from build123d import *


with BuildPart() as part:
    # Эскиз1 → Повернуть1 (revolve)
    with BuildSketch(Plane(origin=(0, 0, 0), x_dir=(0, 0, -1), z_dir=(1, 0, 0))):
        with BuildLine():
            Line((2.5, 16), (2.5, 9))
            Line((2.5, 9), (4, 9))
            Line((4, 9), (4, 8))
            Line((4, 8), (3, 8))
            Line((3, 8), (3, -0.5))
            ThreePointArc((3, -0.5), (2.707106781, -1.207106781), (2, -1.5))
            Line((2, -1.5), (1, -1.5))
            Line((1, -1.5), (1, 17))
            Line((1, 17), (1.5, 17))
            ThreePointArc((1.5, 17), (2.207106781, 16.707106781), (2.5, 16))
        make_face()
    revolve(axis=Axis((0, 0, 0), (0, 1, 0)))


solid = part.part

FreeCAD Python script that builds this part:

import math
import FreeCAD as App
import Part
import Sketcher
Q = App.Units.Quantity

doc = App.newDocument("Part")
params = doc.addObject("Spreadsheet::Sheet", "Params")
for row, (alias, value) in enumerate([
    ("sketch1_radius", "1 mm"),
    ("sketch1_width", "7 mm"),
    ("sketch1_width2", "1 mm"),
    ("sketch1_width3", "18.5 mm"),
    ("sketch1_height", "0.5 mm"),
    ("revolution_angle", "360 deg"),
], start=1):
    params.set(f"A{row}", alias)
    params.set(f"B{row}", "=" + value)
    params.setAlias(f"B{row}", alias)

body = doc.addObject("PartDesign::Body", "Body")

# Sketch on YZ plane
sketch1 = body.newObject("Sketcher::SketchObject", "Sketch")
sketch1.AttachmentSupport = (doc.getObject("YZ_Plane"), [""])
sketch1.MapMode = "FlatFace"
sketch1.addGeometry([
    Part.LineSegment(App.Vector(9, -2.5, 0), App.Vector(16, -2.5, 0)),  # 0
    Part.ArcOfCircle(Part.Circle(App.Vector(16, -1.5, 0), App.Vector(0, 0, 1), 1), math.radians(-90), math.radians(0)),  # 1
    Part.LineSegment(App.Vector(17, -1.5, 0), App.Vector(17, -1, 0)),  # 2
    Part.LineSegment(App.Vector(17, -1, 0), App.Vector(-1.5, -1, 0)),  # 3
    Part.LineSegment(App.Vector(-1.5, -1, 0), App.Vector(-1.5, -2, 0)),  # 4
    Part.ArcOfCircle(Part.Circle(App.Vector(-0.5, -2, 0), App.Vector(0, 0, 1), 1), math.radians(-180), math.radians(-90)),  # 5
    Part.LineSegment(App.Vector(-0.5, -3, 0), App.Vector(8, -3, 0)),  # 6
    Part.LineSegment(App.Vector(8, -3, 0), App.Vector(8, -4, 0)),  # 7
    Part.LineSegment(App.Vector(8, -4, 0), App.Vector(9, -4, 0)),  # 8
    Part.LineSegment(App.Vector(9, -4, 0), App.Vector(9, -2.5, 0)),  # 9
], False)
sketch1.addConstraint([
    Sketcher.Constraint("Tangent", 0, 2, 1, 1),
    Sketcher.Constraint("Tangent", 1, 2, 2, 1),
    Sketcher.Constraint("Coincident", 2, 2, 3, 1),
    Sketcher.Constraint("Coincident", 3, 2, 4, 1),
    Sketcher.Constraint("Tangent", 4, 2, 5, 1),
    Sketcher.Constraint("Tangent", 5, 2, 6, 1),
    Sketcher.Constraint("Coincident", 6, 2, 7, 1),
    Sketcher.Constraint("Coincident", 7, 2, 8, 1),
    Sketcher.Constraint("Coincident", 8, 2, 9, 1),
    Sketcher.Constraint("Coincident", 9, 2, 0, 1),
    Sketcher.Constraint("Horizontal", 0),
    Sketcher.Constraint("Vertical", 2),
    Sketcher.Constraint("Horizontal", 3),
    Sketcher.Constraint("Vertical", 4),
    Sketcher.Constraint("Horizontal", 6),
    Sketcher.Constraint("Vertical", 7),
    Sketcher.Constraint("Horizontal", 8),
    Sketcher.Constraint("Vertical", 9),
    Sketcher.Constraint("Equal", 1, 5),
    Sketcher.Constraint("Equal", 8, 4),
    Sketcher.Constraint("Equal", 4, 7),
    Sketcher.Constraint("Radius", 1, Q("1 mm")),
    Sketcher.Constraint("DistanceX", 0, 1, 0, 2, Q("7 mm")),
    Sketcher.Constraint("DistanceX", 8, 1, 8, 2, Q("1 mm")),
    Sketcher.Constraint("DistanceX", 3, 2, 3, 1, Q("18.5 mm")),
    Sketcher.Constraint("DistanceY", 2, 1, 2, 2, Q("0.5 mm")),
    Sketcher.Constraint("DistanceX", -1, 1, 1, 3, Q("16 mm")),
    Sketcher.Constraint("DistanceY", 5, 3, -1, 1, Q("2 mm")),
])
sketch1.setExpression("Constraints[21]", "Params.sketch1_radius")
sketch1.setExpression("Constraints[22]", "Params.sketch1_width")
sketch1.setExpression("Constraints[23]", "Params.sketch1_width2")
sketch1.setExpression("Constraints[24]", "Params.sketch1_width3")
sketch1.setExpression("Constraints[25]", "Params.sketch1_height")
revolution = body.newObject("PartDesign::Revolution", "Revolution")
revolution.Profile = sketch1
revolution.ReferenceAxis = (sketch1, ["H_Axis"])
revolution.setExpression("Angle", "Params.revolution_angle")

doc.recompute()
